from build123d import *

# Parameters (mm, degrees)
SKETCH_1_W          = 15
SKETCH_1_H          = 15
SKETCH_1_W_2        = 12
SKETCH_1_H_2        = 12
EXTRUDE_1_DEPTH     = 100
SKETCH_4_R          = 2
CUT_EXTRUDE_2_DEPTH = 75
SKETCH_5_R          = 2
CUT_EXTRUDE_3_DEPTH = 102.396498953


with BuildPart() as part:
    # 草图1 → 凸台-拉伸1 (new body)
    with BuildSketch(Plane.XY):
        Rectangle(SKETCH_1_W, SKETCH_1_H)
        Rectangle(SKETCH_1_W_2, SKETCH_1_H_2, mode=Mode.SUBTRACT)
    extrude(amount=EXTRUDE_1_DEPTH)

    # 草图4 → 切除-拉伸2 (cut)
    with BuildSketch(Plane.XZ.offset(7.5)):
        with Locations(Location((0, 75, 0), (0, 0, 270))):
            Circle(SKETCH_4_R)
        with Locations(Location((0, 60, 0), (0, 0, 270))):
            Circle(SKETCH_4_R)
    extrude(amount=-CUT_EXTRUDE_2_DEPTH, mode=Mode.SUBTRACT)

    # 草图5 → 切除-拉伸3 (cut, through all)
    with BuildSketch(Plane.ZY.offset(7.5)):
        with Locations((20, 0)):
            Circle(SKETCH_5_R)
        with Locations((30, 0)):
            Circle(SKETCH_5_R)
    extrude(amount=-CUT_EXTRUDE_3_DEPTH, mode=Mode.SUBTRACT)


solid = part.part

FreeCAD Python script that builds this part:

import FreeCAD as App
import Part
import Sketcher
Q = App.Units.Quantity

doc = App.newDocument("Part")
body = doc.addObject("PartDesign::Body", "Body")

sketch1 = doc.addObject("Sketcher::SketchObject", "Sketch")
body.addObject(sketch1)
sketch1.AttachmentSupport = (doc.XY_Plane, [""])
sketch1.MapMode = "FlatFace"
sketch1.addGeometry([
    Part.LineSegment(App.Vector(-8, 8, 0), App.Vector(-8, -8, 0)),
    Part.LineSegment(App.Vector(-8, -8, 0), App.Vector(8, -8, 0)),
    Part.LineSegment(App.Vector(8, -8, 0), App.Vector(8, 8, 0)),
    Part.LineSegment(App.Vector(8, 8, 0), App.Vector(-8, 8, 0)),
    Part.LineSegment(App.Vector(6, -6, 0), App.Vector(-6, -6, 0)),
    Part.LineSegment(App.Vector(-6, -6, 0), App.Vector(-6, 6, 0)),
    Part.LineSegment(App.Vector(-6, 6, 0), App.Vector(6, 6, 0)),
    Part.LineSegment(App.Vector(6, 6, 0), App.Vector(6, -6, 0)),
], False)
sketch1.addConstraint([
    Sketcher.Constraint("Coincident", 0, 2, 1, 1),
    Sketcher.Constraint("Coincident", 1, 2, 2, 1),
    Sketcher.Constraint("Coincident", 2, 2, 3, 1),
    Sketcher.Constraint("Coincident", 3, 2, 0, 1),
    Sketcher.Constraint("Coincident", 4, 2, 5, 1),
    Sketcher.Constraint("Coincident", 5, 2, 6, 1),
    Sketcher.Constraint("Coincident", 6, 2, 7, 1),
    Sketcher.Constraint("Coincident", 7, 2, 4, 1),
    Sketcher.Constraint("Vertical", 0),
    Sketcher.Constraint("Horizontal", 1),
    Sketcher.Constraint("Vertical", 2),
    Sketcher.Constraint("Horizontal", 3),
    Sketcher.Constraint("Horizontal", 4),
    Sketcher.Constraint("Vertical", 5),
    Sketcher.Constraint("Horizontal", 6),
    Sketcher.Constraint("Vertical", 7),
    Sketcher.Constraint("Symmetric", 0, 2, 2, 2, -1, 1),
    Sketcher.Constraint("Symmetric", 4, 2, 6, 2, -1, 1),
    Sketcher.Constraint("Equal", 3, 0),
    Sketcher.Constraint("Equal", 6, 5),
    Sketcher.Constraint("DistanceX", 1, 1, 1, 2, Q("15 mm")),
    Sketcher.Constraint("DistanceX", 4, 2, 4, 1, Q("12 mm")),
])
pad1 = doc.addObject("PartDesign::Pad", "Pad")
body.addObject(pad1)
pad1.Profile = sketch1
pad1.Length = 100

sketch2 = doc.addObject("Sketcher::SketchObject", "Sketch001")
body.addObject(sketch2)
sketch2.AttachmentSupport = (doc.XZ_Plane, [""])
sketch2.MapMode = "FlatFace"
sketch2.AttachmentOffset = App.Placement(App.Vector(0, 0, 7.5), App.Rotation())
sketch2.addGeometry([
    Part.Circle(App.Vector(0, 75, 0), App.Vector(0, 0, 1), 2),
    Part.Circle(App.Vector(0, 60, 0), App.Vector(0, 0, 1), 2),
], False)
sketch2.addConstraint([
    Sketcher.Constraint("Equal", 0, 1),
    Sketcher.Constraint("PointOnObject", 0, 3, -2),
    Sketcher.Constraint("PointOnObject", 1, 3, -2),
    Sketcher.Constraint("Diameter", 0, Q("4 mm")),
    Sketcher.Constraint("DistanceY", -1, 1, 0, 3, Q("75 mm")),
    Sketcher.Constraint("DistanceY", -1, 1, 1, 3, Q("60 mm")),
])
pocket1 = doc.addObject("PartDesign::Pocket", "Pocket")
body.addObject(pocket1)
pocket1.Profile = sketch2
pocket1.Length = 75

sketch3 = doc.addObject("Sketcher::SketchObject", "Sketch002")
body.addObject(sketch3)
sketch3.AttachmentSupport = (doc.YZ_Plane, [""])
sketch3.MapMode = "FlatFace"
sketch3.AttachmentOffset = App.Placement(App.Vector(0, 0, -7.5), App.Rotation())
sketch3.addGeometry([
    Part.Circle(App.Vector(0, 20, 0), App.Vector(0, 0, 1), 2),
    Part.Circle(App.Vector(0, 30, 0), App.Vector(0, 0, 1), 2),
], False)
sketch3.addConstraint([
    Sketcher.Constraint("Equal", 0, 1),
    Sketcher.Constraint("PointOnObject", 0, 3, -2),
    Sketcher.Constraint("PointOnObject", 1, 3, -2),
    Sketcher.Constraint("Diameter", 0, Q("4 mm")),
    Sketcher.Constraint("DistanceY", -1, 1, 0, 3, Q("20 mm")),
    Sketcher.Constraint("DistanceY", -1, 1, 1, 3, Q("30 mm")),
])
pocket2 = doc.addObject("PartDesign::Pocket", "Pocket001")
body.addObject(pocket2)
pocket2.Profile = sketch3
pocket2.Type = "ThroughAll"
pocket2.Reversed = True

doc.recompute()
